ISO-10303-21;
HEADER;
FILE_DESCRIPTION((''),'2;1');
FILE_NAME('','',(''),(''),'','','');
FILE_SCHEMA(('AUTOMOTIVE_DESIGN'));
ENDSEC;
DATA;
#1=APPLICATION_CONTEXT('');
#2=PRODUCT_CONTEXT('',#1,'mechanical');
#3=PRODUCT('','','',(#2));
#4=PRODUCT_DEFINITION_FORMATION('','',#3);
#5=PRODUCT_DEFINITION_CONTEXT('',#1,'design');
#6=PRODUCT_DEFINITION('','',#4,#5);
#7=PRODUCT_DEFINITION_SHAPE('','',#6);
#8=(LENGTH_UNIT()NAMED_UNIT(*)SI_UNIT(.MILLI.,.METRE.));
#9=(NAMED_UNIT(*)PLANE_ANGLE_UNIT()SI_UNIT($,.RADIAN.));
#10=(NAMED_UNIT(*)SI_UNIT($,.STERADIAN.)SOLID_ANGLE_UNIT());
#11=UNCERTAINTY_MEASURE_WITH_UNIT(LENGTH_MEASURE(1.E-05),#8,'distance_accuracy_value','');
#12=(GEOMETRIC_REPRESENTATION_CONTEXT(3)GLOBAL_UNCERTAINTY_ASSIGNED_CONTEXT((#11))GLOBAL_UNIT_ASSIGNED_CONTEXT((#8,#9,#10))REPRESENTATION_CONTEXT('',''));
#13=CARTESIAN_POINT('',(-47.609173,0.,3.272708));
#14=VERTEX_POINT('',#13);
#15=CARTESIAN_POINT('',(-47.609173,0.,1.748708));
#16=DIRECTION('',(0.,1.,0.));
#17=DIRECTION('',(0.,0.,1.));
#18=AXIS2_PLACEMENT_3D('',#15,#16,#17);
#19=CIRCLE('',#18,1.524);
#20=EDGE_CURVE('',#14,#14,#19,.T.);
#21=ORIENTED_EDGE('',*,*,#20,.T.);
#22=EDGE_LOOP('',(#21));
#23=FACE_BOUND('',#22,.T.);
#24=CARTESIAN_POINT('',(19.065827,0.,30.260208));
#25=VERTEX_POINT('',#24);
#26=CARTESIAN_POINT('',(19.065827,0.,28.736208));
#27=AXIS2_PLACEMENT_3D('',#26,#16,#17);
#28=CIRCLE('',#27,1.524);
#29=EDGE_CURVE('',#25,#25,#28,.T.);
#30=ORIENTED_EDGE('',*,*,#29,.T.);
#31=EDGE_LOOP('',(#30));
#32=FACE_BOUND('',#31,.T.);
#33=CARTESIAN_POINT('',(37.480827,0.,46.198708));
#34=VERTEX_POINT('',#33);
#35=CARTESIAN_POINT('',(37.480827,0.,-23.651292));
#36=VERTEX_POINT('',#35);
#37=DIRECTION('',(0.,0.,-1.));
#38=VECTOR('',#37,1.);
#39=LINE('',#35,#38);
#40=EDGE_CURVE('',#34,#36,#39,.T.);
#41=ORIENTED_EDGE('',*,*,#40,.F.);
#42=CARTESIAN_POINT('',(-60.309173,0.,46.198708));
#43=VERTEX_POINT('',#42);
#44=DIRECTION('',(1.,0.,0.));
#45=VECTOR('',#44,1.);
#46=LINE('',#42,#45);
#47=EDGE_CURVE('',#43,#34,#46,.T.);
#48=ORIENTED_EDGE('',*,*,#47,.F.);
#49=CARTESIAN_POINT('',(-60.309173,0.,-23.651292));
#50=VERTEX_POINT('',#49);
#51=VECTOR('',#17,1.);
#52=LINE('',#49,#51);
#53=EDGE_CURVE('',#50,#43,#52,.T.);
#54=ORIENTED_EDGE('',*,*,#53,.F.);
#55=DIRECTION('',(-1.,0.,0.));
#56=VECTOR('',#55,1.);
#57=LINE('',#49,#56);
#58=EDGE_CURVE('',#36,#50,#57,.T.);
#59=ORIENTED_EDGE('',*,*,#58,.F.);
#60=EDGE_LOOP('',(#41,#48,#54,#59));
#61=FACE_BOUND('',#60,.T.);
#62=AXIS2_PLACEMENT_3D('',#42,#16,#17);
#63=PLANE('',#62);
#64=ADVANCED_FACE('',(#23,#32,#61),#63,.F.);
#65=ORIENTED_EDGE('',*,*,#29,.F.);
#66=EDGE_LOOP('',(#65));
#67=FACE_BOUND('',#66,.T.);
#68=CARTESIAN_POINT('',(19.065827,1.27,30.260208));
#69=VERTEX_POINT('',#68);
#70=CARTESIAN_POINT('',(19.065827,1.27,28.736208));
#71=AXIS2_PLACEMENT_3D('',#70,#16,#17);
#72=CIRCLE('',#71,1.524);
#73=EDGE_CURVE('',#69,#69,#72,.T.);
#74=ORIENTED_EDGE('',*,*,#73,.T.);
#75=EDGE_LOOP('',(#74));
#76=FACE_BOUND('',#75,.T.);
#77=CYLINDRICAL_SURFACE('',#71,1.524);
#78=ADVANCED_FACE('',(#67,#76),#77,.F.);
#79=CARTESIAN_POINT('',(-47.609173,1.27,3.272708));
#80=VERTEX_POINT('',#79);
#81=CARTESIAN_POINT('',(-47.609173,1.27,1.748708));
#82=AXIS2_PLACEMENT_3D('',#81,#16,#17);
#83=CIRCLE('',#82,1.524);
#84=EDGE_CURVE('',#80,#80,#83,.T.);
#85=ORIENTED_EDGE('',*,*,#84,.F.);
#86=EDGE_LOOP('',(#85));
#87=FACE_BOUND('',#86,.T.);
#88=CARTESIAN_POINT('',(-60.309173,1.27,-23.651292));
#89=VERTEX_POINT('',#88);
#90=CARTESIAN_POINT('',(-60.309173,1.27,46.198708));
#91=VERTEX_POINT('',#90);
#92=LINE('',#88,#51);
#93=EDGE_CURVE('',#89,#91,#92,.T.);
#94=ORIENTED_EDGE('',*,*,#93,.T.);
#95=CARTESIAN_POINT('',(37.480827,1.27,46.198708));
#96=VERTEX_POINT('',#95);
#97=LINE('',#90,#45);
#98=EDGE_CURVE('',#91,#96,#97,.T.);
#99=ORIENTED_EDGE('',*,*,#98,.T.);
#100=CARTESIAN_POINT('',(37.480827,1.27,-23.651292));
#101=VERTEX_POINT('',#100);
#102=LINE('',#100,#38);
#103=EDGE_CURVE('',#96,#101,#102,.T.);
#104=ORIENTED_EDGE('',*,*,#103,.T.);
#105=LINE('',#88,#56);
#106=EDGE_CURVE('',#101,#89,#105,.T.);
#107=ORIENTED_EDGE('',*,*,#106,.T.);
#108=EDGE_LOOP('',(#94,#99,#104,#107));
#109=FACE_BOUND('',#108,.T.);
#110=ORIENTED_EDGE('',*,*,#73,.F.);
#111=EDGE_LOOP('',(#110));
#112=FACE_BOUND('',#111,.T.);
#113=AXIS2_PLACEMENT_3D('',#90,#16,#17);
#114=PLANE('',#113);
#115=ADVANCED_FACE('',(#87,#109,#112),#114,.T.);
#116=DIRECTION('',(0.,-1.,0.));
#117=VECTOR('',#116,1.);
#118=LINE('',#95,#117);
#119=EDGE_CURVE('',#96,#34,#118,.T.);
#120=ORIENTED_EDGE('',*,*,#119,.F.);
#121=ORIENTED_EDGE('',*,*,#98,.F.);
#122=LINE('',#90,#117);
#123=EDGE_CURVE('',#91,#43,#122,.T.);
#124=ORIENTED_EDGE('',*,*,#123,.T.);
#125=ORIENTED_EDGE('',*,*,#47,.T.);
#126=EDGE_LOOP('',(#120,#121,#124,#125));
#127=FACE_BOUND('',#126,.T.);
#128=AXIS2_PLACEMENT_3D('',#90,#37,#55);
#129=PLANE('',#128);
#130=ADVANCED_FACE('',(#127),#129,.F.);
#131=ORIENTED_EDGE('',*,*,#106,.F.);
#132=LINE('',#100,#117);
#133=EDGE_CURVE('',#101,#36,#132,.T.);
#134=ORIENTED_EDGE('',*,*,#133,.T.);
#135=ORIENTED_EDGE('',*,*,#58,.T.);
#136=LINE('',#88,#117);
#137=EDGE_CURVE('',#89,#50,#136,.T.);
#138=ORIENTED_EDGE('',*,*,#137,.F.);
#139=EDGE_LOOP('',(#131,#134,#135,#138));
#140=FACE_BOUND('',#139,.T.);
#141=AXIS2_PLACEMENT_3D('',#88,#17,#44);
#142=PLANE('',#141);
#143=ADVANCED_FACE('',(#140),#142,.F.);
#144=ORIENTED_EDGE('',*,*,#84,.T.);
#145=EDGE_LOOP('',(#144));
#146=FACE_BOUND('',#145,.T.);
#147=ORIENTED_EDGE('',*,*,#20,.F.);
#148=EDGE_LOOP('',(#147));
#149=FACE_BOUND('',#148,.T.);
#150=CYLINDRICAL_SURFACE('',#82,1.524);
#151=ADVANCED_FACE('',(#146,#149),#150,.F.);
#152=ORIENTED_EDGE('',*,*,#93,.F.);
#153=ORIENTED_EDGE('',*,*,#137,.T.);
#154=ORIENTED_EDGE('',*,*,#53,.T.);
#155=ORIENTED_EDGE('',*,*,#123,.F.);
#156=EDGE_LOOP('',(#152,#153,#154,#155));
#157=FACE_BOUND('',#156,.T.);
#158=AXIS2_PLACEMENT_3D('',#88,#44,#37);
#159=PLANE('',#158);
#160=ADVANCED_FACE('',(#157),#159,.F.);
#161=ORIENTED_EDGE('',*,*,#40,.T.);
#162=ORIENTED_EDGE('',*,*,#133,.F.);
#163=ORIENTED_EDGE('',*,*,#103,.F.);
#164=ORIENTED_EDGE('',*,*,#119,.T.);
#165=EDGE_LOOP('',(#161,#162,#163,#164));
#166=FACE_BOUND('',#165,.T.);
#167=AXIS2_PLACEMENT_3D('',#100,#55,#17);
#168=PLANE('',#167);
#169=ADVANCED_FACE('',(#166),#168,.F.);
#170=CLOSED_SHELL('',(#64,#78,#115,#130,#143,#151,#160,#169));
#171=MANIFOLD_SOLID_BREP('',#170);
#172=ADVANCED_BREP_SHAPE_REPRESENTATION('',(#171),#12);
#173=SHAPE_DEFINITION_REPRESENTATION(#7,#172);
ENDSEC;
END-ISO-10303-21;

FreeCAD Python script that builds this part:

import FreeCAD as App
import Part
import Sketcher

V = App.Vector
Q = App.Units.Quantity


def add_polygon(sketch, points):
    """Adds a closed chain of lines whose ends are joined by coincident constraints."""
    first, n = sketch.GeometryCount, len(points)
    for a, b in zip(points, points[1:] + points[:1]):
        sketch.addGeometry(Part.LineSegment(App.Vector(*a, 0), App.Vector(*b, 0)), False)
    for i in range(n):
        sketch.addConstraint(Sketcher.Constraint("Coincident", first + i, 2, first + (i + 1) % n, 1))

doc = App.newDocument("Part")
body = doc.addObject("PartDesign::Body", "Body")

sketch1 = body.newObject("Sketcher::SketchObject", "Sketch")
sketch1.AttachmentSupport = (doc.getObject("XZ_Plane"), [""])
sketch1.MapMode = "FlatFace"
add_polygon(sketch1, [(-60, -24), (-60, 46), (37, 46), (37, -24)])
sketch1.addConstraint([
    Sketcher.Constraint("Vertical", 0),
    Sketcher.Constraint("Horizontal", 1),
    Sketcher.Constraint("Vertical", 2),
    Sketcher.Constraint("Horizontal", 3),
    Sketcher.Constraint("DistanceX", 1, 1, 1, 2, Q("3.85 in")),
    Sketcher.Constraint("DistanceY", 0, 1, 0, 2, Q("2.75 in")),
    Sketcher.Constraint("DistanceY", -1, 1, 0, 2, Q("46.198708 mm")),
    Sketcher.Constraint("DistanceX", 0, 2, -1, 1, Q("60.309173 mm")),
])
pad1 = body.newObject("PartDesign::Pad", "Pad")
pad1.Profile = sketch1
pad1.Length = Q("0.05 in")
pad1.Reversed = True

sketch2 = body.newObject("Sketcher::SketchObject", "Sketch001")
sketch2.AttachmentSupport = (doc.getObject("XZ_Plane"), [""])
sketch2.MapMode = "FlatFace"
sketch2.AttachmentOffset = App.Placement(V(0, 0, -0.05 * 25.4), App.Rotation())
sketch2.addGeometry([
    Part.Circle(V(19.1, 28.7, 0), V(0, 0, 1), 1.5),
    Part.Circle(V(-47.6, 1.7, 0), V(0, 0, 1), 1.5),
], False)
sketch2.addConstraint([
    Sketcher.Constraint("Equal", 0, 1),
    Sketcher.Constraint("Diameter", 0, Q("0.12 in")),
    Sketcher.Constraint("DistanceX", 1, 3, 0, 3, Q("2.625 in")),
    Sketcher.Constraint("DistanceY", 1, 3, 0, 3, Q("1.0625 in")),
    Sketcher.Constraint("DistanceY", -1, 1, 0, 3, Q("28.736208 mm")),
    Sketcher.Constraint("DistanceX", -1, 1, 0, 3, Q("19.065827 mm")),
])
doc.recompute()
hole = body.newObject("PartDesign::Hole", "Hole")
hole.Profile = sketch2
hole.ThreadType = "None"
hole.Diameter = Q("0.12 in")
hole.DepthType = "Dimension"
hole.Depth = Q("1 in")
hole.DrillPoint = "Angled"
hole.DrillPointAngle = 118
hole.Reversed = True

doc.recompute()
